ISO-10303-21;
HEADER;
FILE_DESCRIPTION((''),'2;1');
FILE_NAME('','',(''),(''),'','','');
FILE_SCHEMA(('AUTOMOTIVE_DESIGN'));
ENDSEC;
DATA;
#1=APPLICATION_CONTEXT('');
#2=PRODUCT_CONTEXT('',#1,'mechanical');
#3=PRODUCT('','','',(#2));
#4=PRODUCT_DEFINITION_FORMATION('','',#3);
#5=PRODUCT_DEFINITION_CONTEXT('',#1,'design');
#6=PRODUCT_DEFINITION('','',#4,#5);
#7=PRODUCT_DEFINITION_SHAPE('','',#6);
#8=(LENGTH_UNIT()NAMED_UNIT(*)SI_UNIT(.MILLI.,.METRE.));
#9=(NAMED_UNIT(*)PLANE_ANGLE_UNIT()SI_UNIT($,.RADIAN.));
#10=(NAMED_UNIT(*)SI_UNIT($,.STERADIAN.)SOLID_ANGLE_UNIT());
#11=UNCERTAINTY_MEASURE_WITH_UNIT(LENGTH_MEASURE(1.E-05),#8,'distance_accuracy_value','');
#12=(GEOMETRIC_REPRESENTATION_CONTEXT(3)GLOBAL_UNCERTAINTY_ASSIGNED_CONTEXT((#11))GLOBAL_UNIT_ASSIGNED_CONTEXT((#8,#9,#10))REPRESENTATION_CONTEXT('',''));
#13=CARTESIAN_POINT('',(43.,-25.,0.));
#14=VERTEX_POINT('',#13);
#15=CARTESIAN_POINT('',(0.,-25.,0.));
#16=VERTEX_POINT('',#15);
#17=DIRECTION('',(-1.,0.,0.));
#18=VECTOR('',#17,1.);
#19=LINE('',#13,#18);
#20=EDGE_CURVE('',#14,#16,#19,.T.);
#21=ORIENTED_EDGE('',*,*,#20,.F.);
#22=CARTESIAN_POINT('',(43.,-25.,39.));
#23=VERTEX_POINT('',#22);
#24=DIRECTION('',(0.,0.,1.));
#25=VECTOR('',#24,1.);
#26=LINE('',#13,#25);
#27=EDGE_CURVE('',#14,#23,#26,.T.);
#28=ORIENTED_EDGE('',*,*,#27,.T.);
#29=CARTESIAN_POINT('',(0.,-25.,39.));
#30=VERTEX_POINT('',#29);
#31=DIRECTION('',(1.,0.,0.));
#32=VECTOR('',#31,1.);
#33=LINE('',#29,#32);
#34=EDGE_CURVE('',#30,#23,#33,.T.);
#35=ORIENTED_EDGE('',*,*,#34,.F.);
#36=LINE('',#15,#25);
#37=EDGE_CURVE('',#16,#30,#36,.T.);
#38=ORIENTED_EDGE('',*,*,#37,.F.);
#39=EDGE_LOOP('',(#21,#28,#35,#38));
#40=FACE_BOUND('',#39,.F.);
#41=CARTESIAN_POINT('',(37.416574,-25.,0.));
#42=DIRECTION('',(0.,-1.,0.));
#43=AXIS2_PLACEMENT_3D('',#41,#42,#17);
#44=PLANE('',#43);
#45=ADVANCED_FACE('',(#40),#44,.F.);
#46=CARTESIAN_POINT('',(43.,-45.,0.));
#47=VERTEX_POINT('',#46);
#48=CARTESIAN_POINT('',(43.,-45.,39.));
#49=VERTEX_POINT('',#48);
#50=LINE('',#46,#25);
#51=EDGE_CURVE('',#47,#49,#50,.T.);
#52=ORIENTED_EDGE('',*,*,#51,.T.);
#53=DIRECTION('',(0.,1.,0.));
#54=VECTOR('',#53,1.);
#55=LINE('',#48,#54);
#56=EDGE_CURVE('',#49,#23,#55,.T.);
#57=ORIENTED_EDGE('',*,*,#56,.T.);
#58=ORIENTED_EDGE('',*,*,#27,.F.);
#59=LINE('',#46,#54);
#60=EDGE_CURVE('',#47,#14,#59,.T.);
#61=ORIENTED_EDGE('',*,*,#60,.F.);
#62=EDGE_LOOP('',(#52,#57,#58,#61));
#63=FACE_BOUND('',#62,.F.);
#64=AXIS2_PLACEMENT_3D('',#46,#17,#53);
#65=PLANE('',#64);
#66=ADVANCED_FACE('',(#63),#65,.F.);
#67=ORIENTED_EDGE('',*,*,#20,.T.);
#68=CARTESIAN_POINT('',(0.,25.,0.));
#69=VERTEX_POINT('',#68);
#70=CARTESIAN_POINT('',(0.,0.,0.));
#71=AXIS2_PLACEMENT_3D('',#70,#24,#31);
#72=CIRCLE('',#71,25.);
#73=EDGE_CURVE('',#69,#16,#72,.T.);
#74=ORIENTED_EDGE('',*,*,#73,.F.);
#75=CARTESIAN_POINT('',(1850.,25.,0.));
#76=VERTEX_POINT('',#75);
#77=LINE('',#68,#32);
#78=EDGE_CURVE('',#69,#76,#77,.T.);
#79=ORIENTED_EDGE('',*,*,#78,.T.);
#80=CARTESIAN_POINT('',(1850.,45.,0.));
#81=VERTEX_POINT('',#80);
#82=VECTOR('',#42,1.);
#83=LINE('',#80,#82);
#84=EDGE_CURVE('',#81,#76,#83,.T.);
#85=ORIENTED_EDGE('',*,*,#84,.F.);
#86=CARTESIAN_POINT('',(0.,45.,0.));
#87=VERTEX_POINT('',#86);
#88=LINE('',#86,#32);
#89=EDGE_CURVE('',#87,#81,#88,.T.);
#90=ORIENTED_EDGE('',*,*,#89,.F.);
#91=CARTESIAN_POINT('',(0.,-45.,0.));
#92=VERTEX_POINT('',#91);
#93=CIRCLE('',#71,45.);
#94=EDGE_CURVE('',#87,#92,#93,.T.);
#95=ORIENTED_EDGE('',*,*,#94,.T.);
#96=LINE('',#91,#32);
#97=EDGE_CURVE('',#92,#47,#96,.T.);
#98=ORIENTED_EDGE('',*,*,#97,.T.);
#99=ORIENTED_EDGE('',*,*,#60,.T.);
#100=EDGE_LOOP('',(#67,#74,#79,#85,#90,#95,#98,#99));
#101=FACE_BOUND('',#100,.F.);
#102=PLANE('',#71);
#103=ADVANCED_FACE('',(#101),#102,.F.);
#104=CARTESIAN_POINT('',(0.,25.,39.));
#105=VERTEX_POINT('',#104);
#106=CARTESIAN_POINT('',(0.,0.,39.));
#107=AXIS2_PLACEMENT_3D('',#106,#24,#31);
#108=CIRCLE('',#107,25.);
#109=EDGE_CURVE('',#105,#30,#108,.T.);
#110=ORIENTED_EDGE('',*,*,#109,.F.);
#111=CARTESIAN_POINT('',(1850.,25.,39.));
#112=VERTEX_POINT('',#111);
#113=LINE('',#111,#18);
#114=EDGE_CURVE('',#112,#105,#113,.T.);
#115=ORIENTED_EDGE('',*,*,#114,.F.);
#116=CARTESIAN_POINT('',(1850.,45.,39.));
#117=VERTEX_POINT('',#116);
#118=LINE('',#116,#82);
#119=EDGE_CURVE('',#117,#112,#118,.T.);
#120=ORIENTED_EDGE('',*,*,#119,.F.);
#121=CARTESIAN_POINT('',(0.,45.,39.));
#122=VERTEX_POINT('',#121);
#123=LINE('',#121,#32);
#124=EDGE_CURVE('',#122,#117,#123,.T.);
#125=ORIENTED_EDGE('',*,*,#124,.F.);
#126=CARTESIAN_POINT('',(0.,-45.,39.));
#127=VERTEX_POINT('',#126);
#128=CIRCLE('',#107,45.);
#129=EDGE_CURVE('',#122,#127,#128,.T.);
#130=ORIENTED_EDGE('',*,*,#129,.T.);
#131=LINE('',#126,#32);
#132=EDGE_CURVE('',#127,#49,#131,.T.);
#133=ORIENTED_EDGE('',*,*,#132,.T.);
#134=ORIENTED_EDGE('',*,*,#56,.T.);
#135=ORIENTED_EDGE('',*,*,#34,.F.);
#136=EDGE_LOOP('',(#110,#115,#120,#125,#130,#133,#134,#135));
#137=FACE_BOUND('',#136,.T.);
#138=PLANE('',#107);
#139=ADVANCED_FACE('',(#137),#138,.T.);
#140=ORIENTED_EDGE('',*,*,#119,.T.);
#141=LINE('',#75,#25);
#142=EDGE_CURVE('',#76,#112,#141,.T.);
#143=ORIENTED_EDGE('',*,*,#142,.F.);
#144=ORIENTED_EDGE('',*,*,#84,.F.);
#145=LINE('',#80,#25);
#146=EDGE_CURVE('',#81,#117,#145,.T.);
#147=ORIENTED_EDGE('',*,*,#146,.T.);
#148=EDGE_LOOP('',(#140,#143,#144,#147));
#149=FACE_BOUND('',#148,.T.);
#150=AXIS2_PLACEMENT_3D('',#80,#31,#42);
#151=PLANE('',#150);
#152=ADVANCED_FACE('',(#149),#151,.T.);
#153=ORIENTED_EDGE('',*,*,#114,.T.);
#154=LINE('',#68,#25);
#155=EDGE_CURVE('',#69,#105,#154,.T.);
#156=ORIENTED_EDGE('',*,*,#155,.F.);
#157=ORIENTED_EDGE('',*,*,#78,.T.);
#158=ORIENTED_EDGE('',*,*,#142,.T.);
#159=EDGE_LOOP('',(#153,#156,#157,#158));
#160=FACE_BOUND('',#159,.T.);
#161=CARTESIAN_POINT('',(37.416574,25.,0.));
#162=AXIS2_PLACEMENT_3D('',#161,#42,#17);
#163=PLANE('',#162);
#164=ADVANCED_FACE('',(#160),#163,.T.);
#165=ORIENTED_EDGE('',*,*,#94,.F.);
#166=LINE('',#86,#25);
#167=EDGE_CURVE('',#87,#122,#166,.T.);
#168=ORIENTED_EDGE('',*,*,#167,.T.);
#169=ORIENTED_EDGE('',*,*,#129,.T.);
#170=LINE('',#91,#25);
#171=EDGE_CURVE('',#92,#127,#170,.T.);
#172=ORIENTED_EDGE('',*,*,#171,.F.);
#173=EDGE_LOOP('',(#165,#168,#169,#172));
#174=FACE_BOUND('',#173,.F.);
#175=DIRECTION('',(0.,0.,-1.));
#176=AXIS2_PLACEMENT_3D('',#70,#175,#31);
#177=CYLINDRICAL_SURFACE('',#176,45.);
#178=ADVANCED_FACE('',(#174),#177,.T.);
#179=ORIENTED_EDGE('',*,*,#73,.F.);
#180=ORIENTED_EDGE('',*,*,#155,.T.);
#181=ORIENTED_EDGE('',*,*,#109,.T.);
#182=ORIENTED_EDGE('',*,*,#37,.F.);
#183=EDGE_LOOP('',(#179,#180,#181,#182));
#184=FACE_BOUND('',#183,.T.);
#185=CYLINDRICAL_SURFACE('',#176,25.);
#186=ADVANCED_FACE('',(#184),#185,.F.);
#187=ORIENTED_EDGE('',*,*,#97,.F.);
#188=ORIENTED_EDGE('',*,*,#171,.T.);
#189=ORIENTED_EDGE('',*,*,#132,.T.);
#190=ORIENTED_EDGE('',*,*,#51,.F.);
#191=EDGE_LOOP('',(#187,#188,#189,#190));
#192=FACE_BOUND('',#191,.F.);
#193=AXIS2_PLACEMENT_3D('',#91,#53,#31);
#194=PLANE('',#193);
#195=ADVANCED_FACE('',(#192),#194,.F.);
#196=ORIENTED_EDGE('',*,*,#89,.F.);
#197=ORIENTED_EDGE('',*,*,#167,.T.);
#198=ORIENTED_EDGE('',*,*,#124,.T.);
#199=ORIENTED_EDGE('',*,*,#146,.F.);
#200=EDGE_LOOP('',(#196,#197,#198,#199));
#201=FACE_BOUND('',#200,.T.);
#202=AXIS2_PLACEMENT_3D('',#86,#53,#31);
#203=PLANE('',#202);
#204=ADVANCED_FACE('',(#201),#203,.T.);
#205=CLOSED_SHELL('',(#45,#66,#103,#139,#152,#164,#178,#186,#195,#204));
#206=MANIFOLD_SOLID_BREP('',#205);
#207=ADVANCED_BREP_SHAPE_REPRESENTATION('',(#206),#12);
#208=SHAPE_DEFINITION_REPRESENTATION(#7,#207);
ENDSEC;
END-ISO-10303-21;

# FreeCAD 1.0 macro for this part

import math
import FreeCAD as App
import Part
import Sketcher
from FreeCAD import Vector
Q = App.Units.Quantity

doc = App.newDocument("Part")
body = doc.addObject("PartDesign::Body", "Body")

sketch1 = body.newObject("Sketcher::SketchObject", "Sketch")
sketch1.AttachmentSupport = (doc.getObject("XY_Plane"), [""])
sketch1.MapMode = "FlatFace"
sketch1.addGeometry(Part.ArcOfCircle(Part.Circle(Vector(0, 0, 0), Vector(0, 0, 1), 25), math.radians(90), math.radians(270)), False)
sketch1.addGeometry(Part.LineSegment(Vector(0, 25, 0), Vector(1850, 25, 0)), False)
sketch1.addGeometry(Part.LineSegment(Vector(1850, 25, 0), Vector(1850, 45, 0)), False)
sketch1.addGeometry(Part.LineSegment(Vector(1850, 45, 0), Vector(0, 45, 0)), False)
sketch1.addGeometry(Part.ArcOfCircle(Part.Circle(Vector(0, 0, 0), Vector(0, 0, 1), 45), math.radians(90), math.radians(270)), False)
sketch1.addGeometry(Part.LineSegment(Vector(0, -45, 0), Vector(43, -45, 0)), False)
sketch1.addGeometry(Part.LineSegment(Vector(43, -45, 0), Vector(43, -25, 0)), False)
sketch1.addGeometry(Part.LineSegment(Vector(43, -25, 0), Vector(0, -25, 0)), False)
sketch1.addConstraint(Sketcher.Constraint("Tangent", 0, 1, 1, 1))
sketch1.addConstraint(Sketcher.Constraint("Coincident", 1, 2, 2, 1))
sketch1.addConstraint(Sketcher.Constraint("Coincident", 2, 2, 3, 1))
sketch1.addConstraint(Sketcher.Constraint("Tangent", 3, 2, 4, 1))
sketch1.addConstraint(Sketcher.Constraint("Tangent", 4, 2, 5, 1))
sketch1.addConstraint(Sketcher.Constraint("Coincident", 5, 2, 6, 1))
sketch1.addConstraint(Sketcher.Constraint("Coincident", 6, 2, 7, 1))
sketch1.addConstraint(Sketcher.Constraint("Tangent", 7, 2, 0, 2))
sketch1.addConstraint(Sketcher.Constraint("Horizontal", 1))
sketch1.addConstraint(Sketcher.Constraint("Vertical", 2))
sketch1.addConstraint(Sketcher.Constraint("Horizontal", 3))
sketch1.addConstraint(Sketcher.Constraint("Horizontal", 5))
sketch1.addConstraint(Sketcher.Constraint("Vertical", 6))
sketch1.addConstraint(Sketcher.Constraint("Horizontal", 7))
sketch1.addConstraint(Sketcher.Constraint("Coincident", 0, 3, -1, 1))
sketch1.addConstraint(Sketcher.Constraint("Coincident", 4, 3, -1, 1))
sketch1.addConstraint(Sketcher.Constraint("Radius", 4, Q("45 mm")))
sketch1.addConstraint(Sketcher.Constraint("DistanceX", 1, 1, 1, 2, Q("1850 mm")))
sketch1.addConstraint(Sketcher.Constraint("DistanceY", 2, 1, 2, 2, Q("20 mm")))
sketch1.addConstraint(Sketcher.Constraint("DistanceX", 5, 1, 5, 2, Q("43 mm")))
pad1 = body.newObject("PartDesign::Pad", "Pad")
pad1.Profile = sketch1
pad1.Length = 39

doc.recompute()
